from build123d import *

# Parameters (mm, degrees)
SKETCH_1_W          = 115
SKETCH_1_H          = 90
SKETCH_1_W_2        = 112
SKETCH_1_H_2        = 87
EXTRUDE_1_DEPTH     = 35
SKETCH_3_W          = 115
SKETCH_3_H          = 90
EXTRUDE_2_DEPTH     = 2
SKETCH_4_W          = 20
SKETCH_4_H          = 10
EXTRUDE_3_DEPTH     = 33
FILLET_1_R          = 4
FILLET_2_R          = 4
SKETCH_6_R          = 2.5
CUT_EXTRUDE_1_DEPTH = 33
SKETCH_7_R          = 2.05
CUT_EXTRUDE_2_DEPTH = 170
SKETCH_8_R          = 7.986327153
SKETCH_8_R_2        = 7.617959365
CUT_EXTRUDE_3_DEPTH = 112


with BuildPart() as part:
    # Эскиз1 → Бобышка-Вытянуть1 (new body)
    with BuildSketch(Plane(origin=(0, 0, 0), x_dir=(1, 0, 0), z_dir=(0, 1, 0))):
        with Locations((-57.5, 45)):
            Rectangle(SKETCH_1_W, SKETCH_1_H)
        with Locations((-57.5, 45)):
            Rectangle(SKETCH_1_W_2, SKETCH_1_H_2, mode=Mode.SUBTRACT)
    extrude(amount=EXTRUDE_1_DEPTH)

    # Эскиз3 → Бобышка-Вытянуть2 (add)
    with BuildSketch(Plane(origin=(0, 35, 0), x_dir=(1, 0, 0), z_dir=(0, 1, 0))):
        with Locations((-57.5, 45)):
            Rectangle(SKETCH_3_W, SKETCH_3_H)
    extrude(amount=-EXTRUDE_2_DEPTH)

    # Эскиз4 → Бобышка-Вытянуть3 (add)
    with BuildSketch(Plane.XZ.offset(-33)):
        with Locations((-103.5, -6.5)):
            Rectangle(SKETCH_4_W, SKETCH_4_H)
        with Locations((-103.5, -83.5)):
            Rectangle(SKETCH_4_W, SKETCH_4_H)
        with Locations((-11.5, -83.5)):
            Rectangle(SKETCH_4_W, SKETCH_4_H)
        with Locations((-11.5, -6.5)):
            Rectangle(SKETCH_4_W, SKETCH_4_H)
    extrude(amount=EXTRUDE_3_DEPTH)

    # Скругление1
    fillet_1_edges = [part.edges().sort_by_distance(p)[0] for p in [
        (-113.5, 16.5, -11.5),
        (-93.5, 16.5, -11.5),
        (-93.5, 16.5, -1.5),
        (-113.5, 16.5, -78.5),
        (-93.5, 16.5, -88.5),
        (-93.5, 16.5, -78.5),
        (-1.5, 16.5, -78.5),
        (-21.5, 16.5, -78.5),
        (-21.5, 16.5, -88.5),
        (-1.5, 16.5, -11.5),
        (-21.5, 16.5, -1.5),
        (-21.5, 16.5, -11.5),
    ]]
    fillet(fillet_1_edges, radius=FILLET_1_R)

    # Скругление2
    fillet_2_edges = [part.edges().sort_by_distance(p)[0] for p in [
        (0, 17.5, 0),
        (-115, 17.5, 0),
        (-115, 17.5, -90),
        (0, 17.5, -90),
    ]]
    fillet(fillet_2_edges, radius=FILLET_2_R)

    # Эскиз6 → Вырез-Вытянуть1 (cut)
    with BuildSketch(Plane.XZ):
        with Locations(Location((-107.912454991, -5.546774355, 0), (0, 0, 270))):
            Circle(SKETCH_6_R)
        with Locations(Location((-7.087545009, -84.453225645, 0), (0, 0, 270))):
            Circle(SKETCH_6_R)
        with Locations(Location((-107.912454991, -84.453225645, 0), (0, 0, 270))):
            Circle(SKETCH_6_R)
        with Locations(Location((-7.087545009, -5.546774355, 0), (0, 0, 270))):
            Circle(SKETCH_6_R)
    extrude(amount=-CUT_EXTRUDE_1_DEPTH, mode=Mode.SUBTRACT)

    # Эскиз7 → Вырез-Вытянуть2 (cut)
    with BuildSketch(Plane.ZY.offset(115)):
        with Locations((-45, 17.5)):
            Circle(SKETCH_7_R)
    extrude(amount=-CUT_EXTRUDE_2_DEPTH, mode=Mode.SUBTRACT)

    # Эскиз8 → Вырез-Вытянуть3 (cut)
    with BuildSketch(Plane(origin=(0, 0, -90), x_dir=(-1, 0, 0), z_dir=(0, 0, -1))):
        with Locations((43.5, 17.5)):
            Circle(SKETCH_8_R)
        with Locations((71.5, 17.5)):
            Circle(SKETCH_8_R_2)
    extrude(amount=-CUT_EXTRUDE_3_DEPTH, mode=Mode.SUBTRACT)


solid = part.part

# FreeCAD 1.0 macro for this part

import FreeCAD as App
import Part
import Sketcher
from FreeCAD import Vector


def edges_at(feature, points):
    """Names of the edges that pass closest to the given points."""
    edges = feature.Shape.Edges
    near = lambda p: min(range(len(edges)), key=lambda i: edges[i].distToShape(Part.Vertex(*p))[0])
    return sorted({f"Edge{near(p) + 1}" for p in points})

doc = App.newDocument("Part")
params = doc.addObject("Spreadsheet::Sheet", "Params")
for row, (alias, value) in enumerate([
    ("sketch1_width", "115 mm"),
    ("sketch1_width2", "112 mm"),
    ("sketch1_height", "90 mm"),
    ("sketch1_height2", "87 mm"),
    ("pad1_length", "35 mm"),
    ("sketch2_width", "115 mm"),
    ("sketch2_height", "90 mm"),
    ("pad2_length", "2 mm"),
    ("sketch3_width", "20 mm"),
    ("sketch3_height", "10 mm"),
    ("pad3_length", "33 mm"),
    ("fillet_radius", "4 mm"),
    ("fillet2_radius", "4 mm"),
    ("sketch4_diameter", "5 mm"),
    ("pocket1_length", "33 mm"),
    ("sketch5_diameter", "4.1 mm"),
    ("pocket2_length", "170 mm"),
    ("pocket3_length", "112 mm"),
], start=1):
    params.set(f"A{row}", alias)
    params.set(f"B{row}", "=" + value)
    params.setAlias(f"B{row}", alias)

body = doc.addObject("PartDesign::Body", "Body")

sketch1 = doc.addObject("Sketcher::SketchObject", "Sketch")
body.addObject(sketch1)
sketch1.AttachmentSupport = (doc.XZ_Plane, [""])
sketch1.MapMode = "FlatFace"
sketch1.addGeometry(Part.LineSegment(Vector(-115, -90, 0), Vector(-115, 0, 0)), False)
sketch1.addGeometry(Part.LineSegment(Vector(-115, 0, 0), Vector(0, 0, 0)), False)
sketch1.addGeometry(Part.LineSegment(Vector(0, 0, 0), Vector(0, -90, 0)), False)
sketch1.addGeometry(Part.LineSegment(Vector(0, -90, 0), Vector(-115, -90, 0)), False)
sketch1.addGeometry(Part.LineSegment(Vector(-2, -2, 0), Vector(-114, -2, 0)), False)
sketch1.addGeometry(Part.LineSegment(Vector(-114, -2, 0), Vector(-114, -88, 0)), False)
sketch1.addGeometry(Part.LineSegment(Vector(-114, -88, 0), Vector(-2, -88, 0)), False)
sketch1.addGeometry(Part.LineSegment(Vector(-2, -88, 0), Vector(-2, -2, 0)), False)
sketch1.addConstraint(Sketcher.Constraint("Coincident", 0, 2, 1, 1))
sketch1.addConstraint(Sketcher.Constraint("Coincident", 1, 2, 2, 1))
sketch1.addConstraint(Sketcher.Constraint("Coincident", 2, 2, 3, 1))
sketch1.addConstraint(Sketcher.Constraint("Coincident", 3, 2, 0, 1))
sketch1.addConstraint(Sketcher.Constraint("Coincident", 4, 2, 5, 1))
sketch1.addConstraint(Sketcher.Constraint("Coincident", 5, 2, 6, 1))
sketch1.addConstraint(Sketcher.Constraint("Coincident", 6, 2, 7, 1))
sketch1.addConstraint(Sketcher.Constraint("Coincident", 7, 2, 4, 1))
sketch1.addConstraint(Sketcher.Constraint("Vertical", 0))
sketch1.addConstraint(Sketcher.Constraint("Horizontal", 1))
sketch1.addConstraint(Sketcher.Constraint("Vertical", 2))
sketch1.addConstraint(Sketcher.Constraint("Horizontal", 3))
sketch1.addConstraint(Sketcher.Constraint("Horizontal", 4))
sketch1.addConstraint(Sketcher.Constraint("Vertical", 5))
sketch1.addConstraint(Sketcher.Constraint("Horizontal", 6))
sketch1.addConstraint(Sketcher.Constraint("Vertical", 7))
sketch1.addConstraint(Sketcher.Constraint("Coincident", 1, 2, -1, 1))
sketch1.addConstraint(Sketcher.Constraint("DistanceX", 1, 1, 1, 2, 115.0))
sketch1.addConstraint(Sketcher.Constraint("DistanceX", 4, 2, 4, 1, 112.0))
sketch1.addConstraint(Sketcher.Constraint("DistanceY", 0, 1, 0, 2, 90.0))
sketch1.addConstraint(Sketcher.Constraint("DistanceY", 5, 2, 5, 1, 87.0))
sketch1.addConstraint(Sketcher.Constraint("DistanceX", 4, 2, -1, 1, 113.5))
sketch1.addConstraint(Sketcher.Constraint("DistanceY", 4, 2, -1, 1, 1.5))
sketch1.setExpression("Constraints[17]", "Params.sketch1_width")
sketch1.setExpression("Constraints[18]", "Params.sketch1_width2")
sketch1.setExpression("Constraints[19]", "Params.sketch1_height")
sketch1.setExpression("Constraints[20]", "Params.sketch1_height2")
pad1 = doc.addObject("PartDesign::Pad", "Pad")
body.addObject(pad1)
pad1.Profile = sketch1
pad1.setExpression("Length", "Params.pad1_length")
pad1.Reversed = True

sketch2 = doc.addObject("Sketcher::SketchObject", "Sketch001")
body.addObject(sketch2)
sketch2.AttachmentSupport = (doc.XZ_Plane, [""])
sketch2.MapMode = "FlatFace"
sketch2.AttachmentOffset = App.Placement(Vector(0, 0, -35), App.Rotation())
sketch2.addGeometry(Part.LineSegment(Vector(-115, -90, 0), Vector(-115, 0, 0)), False)
sketch2.addGeometry(Part.LineSegment(Vector(-115, 0, 0), Vector(0, 0, 0)), False)
sketch2.addGeometry(Part.LineSegment(Vector(0, 0, 0), Vector(0, -90, 0)), False)
sketch2.addGeometry(Part.LineSegment(Vector(0, -90, 0), Vector(-115, -90, 0)), False)
sketch2.addConstraint(Sketcher.Constraint("Coincident", 0, 2, 1, 1))
sketch2.addConstraint(Sketcher.Constraint("Coincident", 1, 2, 2, 1))
sketch2.addConstraint(Sketcher.Constraint("Coincident", 2, 2, 3, 1))
sketch2.addConstraint(Sketcher.Constraint("Coincident", 3, 2, 0, 1))
sketch2.addConstraint(Sketcher.Constraint("Vertical", 0))
sketch2.addConstraint(Sketcher.Constraint("Horizontal", 1))
sketch2.addConstraint(Sketcher.Constraint("Vertical", 2))
sketch2.addConstraint(Sketcher.Constraint("Horizontal", 3))
sketch2.addConstraint(Sketcher.Constraint("Coincident", 1, 2, -1, 1))
sketch2.addConstraint(Sketcher.Constraint("DistanceX", 1, 1, 1, 2, 115.0))
sketch2.addConstraint(Sketcher.Constraint("DistanceY", 0, 1, 0, 2, 90.0))
sketch2.setExpression("Constraints[9]", "Params.sketch2_width")
sketch2.setExpression("Constraints[10]", "Params.sketch2_height")
pad2 = doc.addObject("PartDesign::Pad", "Pad001")
body.addObject(pad2)
pad2.Profile = sketch2
pad2.setExpression("Length", "Params.pad2_length")

sketch3 = doc.addObject("Sketcher::SketchObject", "Sketch002")
body.addObject(sketch3)
sketch3.AttachmentSupport = (doc.XZ_Plane, [""])
sketch3.MapMode = "FlatFace"
sketch3.AttachmentOffset = App.Placement(Vector(0, 0, -33), App.Rotation())
sketch3.addGeometry(Part.LineSegment(Vector(-114, -2, 0), Vector(-114, -12, 0)), False)
sketch3.addGeometry(Part.LineSegment(Vector(-114, -12, 0), Vector(-94, -12, 0)), False)
sketch3.addGeometry(Part.LineSegment(Vector(-94, -12, 0), Vector(-94, -2, 0)), False)
sketch3.addGeometry(Part.LineSegment(Vector(-94, -2, 0), Vector(-114, -2, 0)), False)
sketch3.addGeometry(Part.LineSegment(Vector(-114, -78, 0), Vector(-114, -88, 0)), False)
sketch3.addGeometry(Part.LineSegment(Vector(-114, -88, 0), Vector(-94, -88, 0)), False)
sketch3.addGeometry(Part.LineSegment(Vector(-94, -88, 0), Vector(-94, -78, 0)), False)
sketch3.addGeometry(Part.LineSegment(Vector(-94, -78, 0), Vector(-114, -78, 0)), False)
sketch3.addGeometry(Part.LineSegment(Vector(-22, -78, 0), Vector(-22, -88, 0)), False)
sketch3.addGeometry(Part.LineSegment(Vector(-22, -88, 0), Vector(-2, -88, 0)), False)
sketch3.addGeometry(Part.LineSegment(Vector(-2, -88, 0), Vector(-2, -78, 0)), False)
sketch3.addGeometry(Part.LineSegment(Vector(-2, -78, 0), Vector(-22, -78, 0)), False)
sketch3.addGeometry(Part.LineSegment(Vector(-22, -2, 0), Vector(-22, -12, 0)), False)
sketch3.addGeometry(Part.LineSegment(Vector(-22, -12, 0), Vector(-2, -12, 0)), False)
sketch3.addGeometry(Part.LineSegment(Vector(-2, -12, 0), Vector(-2, -2, 0)), False)
sketch3.addGeometry(Part.LineSegment(Vector(-2, -2, 0), Vector(-22, -2, 0)), False)
sketch3.addConstraint(Sketcher.Constraint("Coincident", 0, 2, 1, 1))
sketch3.addConstraint(Sketcher.Constraint("Coincident", 1, 2, 2, 1))
sketch3.addConstraint(Sketcher.Constraint("Coincident", 2, 2, 3, 1))
sketch3.addConstraint(Sketcher.Constraint("Coincident", 3, 2, 0, 1))
sketch3.addConstraint(Sketcher.Constraint("Coincident", 4, 2, 5, 1))
sketch3.addConstraint(Sketcher.Constraint("Coincident", 5, 2, 6, 1))
sketch3.addConstraint(Sketcher.Constraint("Coincident", 6, 2, 7, 1))
sketch3.addConstraint(Sketcher.Constraint("Coincident", 7, 2, 4, 1))
sketch3.addConstraint(Sketcher.Constraint("Coincident", 8, 2, 9, 1))
sketch3.addConstraint(Sketcher.Constraint("Coincident", 9, 2, 10, 1))
sketch3.addConstraint(Sketcher.Constraint("Coincident", 10, 2, 11, 1))
sketch3.addConstraint(Sketcher.Constraint("Coincident", 11, 2, 8, 1))
sketch3.addConstraint(Sketcher.Constraint("Coincident", 12, 2, 13, 1))
sketch3.addConstraint(Sketcher.Constraint("Coincident", 13, 2, 14, 1))
sketch3.addConstraint(Sketcher.Constraint("Coincident", 14, 2, 15, 1))
sketch3.addConstraint(Sketcher.Constraint("Coincident", 15, 2, 12, 1))
sketch3.addConstraint(Sketcher.Constraint("Vertical", 0))
sketch3.addConstraint(Sketcher.Constraint("Horizontal", 1))
sketch3.addConstraint(Sketcher.Constraint("Vertical", 2))
sketch3.addConstraint(Sketcher.Constraint("Horizontal", 3))
sketch3.addConstraint(Sketcher.Constraint("Vertical", 4))
sketch3.addConstraint(Sketcher.Constraint("Horizontal", 5))
sketch3.addConstraint(Sketcher.Constraint("Vertical", 6))
sketch3.addConstraint(Sketcher.Constraint("Horizontal", 7))
sketch3.addConstraint(Sketcher.Constraint("Vertical", 8))
sketch3.addConstraint(Sketcher.Constraint("Horizontal", 9))
sketch3.addConstraint(Sketcher.Constraint("Vertical", 10))
sketch3.addConstraint(Sketcher.Constraint("Horizontal", 11))
sketch3.addConstraint(Sketcher.Constraint("Vertical", 12))
sketch3.addConstraint(Sketcher.Constraint("Horizontal", 13))
sketch3.addConstraint(Sketcher.Constraint("Vertical", 14))
sketch3.addConstraint(Sketcher.Constraint("Horizontal", 15))
sketch3.addConstraint(Sketcher.Constraint("Horizontal", 5, 2, 8, 2))
sketch3.addConstraint(Sketcher.Constraint("Horizontal", 7, 2, 10, 2))
sketch3.addConstraint(Sketcher.Constraint("Horizontal", 1, 2, 12, 2))
sketch3.addConstraint(Sketcher.Constraint("Horizontal", 3, 2, 14, 2))
sketch3.addConstraint(Sketcher.Constraint("Vertical", 3, 2, 4, 2))
sketch3.addConstraint(Sketcher.Constraint("Vertical", 2, 2, 5, 2))
sketch3.addConstraint(Sketcher.Constraint("Vertical", 11, 2, 12, 2))
sketch3.addConstraint(Sketcher.Constraint("Vertical", 10, 2, 13, 2))
sketch3.addConstraint(Sketcher.Constraint("Equal", 7, 9))
sketch3.addConstraint(Sketcher.Constraint("Equal", 2, 4))
sketch3.addConstraint(Sketcher.Constraint("DistanceX", 1, 1, 1, 2, 20.0))
sketch3.addConstraint(Sketcher.Constraint("DistanceY", 0, 2, 0, 1, 10.0))
sketch3.addConstraint(Sketcher.Constraint("DistanceY", 4, 2, 0, 2, 77.0))
sketch3.addConstraint(Sketcher.Constraint("DistanceX", 5, 2, 8, 2, 72.0))
sketch3.addConstraint(Sketcher.Constraint("DistanceX", 0, 2, -1, 1, 113.5))
sketch3.addConstraint(Sketcher.Constraint("DistanceY", 0, 2, -1, 1, 11.5))
sketch3.setExpression("Constraints[42]", "Params.sketch3_width")
sketch3.setExpression("Constraints[43]", "Params.sketch3_height")
pad3 = doc.addObject("PartDesign::Pad", "Pad002")
body.addObject(pad3)
pad3.Profile = sketch3
pad3.setExpression("Length", "Params.pad3_length")
doc.recompute()

fillet = doc.addObject("PartDesign::Fillet", "Fillet")
body.addObject(fillet)
fillet.Base = (pad3, edges_at(pad3, [
    (-113.5, 16.5, -11.5),
    (-93.5, 16.5, -11.5),
    (-93.5, 16.5, -1.5),
    (-113.5, 16.5, -78.5),
    (-93.5, 16.5, -88.5),
    (-93.5, 16.5, -78.5),
    (-1.5, 16.5, -78.5),
    (-21.5, 16.5, -78.5),
    (-21.5, 16.5, -88.5),
    (-1.5, 16.5, -11.5),
    (-21.5, 16.5, -1.5),
    (-21.5, 16.5, -11.5),
]))
fillet.setExpression("Radius", "Params.fillet_radius")
doc.recompute()

fillet2 = doc.addObject("PartDesign::Fillet", "Fillet001")
body.addObject(fillet2)
fillet2.Base = (fillet, edges_at(fillet, [
    (0, 17.5, 0),
    (-115, 17.5, 0),
    (-115, 17.5, -90),
    (0, 17.5, -90),
]))
fillet2.setExpression("Radius", "Params.fillet2_radius")

sketch4 = doc.addObject("Sketcher::SketchObject", "Sketch003")
body.addObject(sketch4)
sketch4.AttachmentSupport = (doc.XZ_Plane, [""])
sketch4.MapMode = "FlatFace"
sketch4.addGeometry(Part.Circle(Vector(-107.9, -5.5, 0), Vector(0, 0, 1), 2.5), False)
sketch4.addGeometry(Part.Circle(Vector(-7.1, -84.5, 0), Vector(0, 0, 1), 2.5), False)
sketch4.addGeometry(Part.Circle(Vector(-107.9, -84.5, 0), Vector(0, 0, 1), 2.5), False)
sketch4.addGeometry(Part.Circle(Vector(-7.1, -5.5, 0), Vector(0, 0, 1), 2.5), False)
sketch4.addConstraint(Sketcher.Constraint("Equal", 0, 1))
sketch4.addConstraint(Sketcher.Constraint("Equal", 1, 2))
sketch4.addConstraint(Sketcher.Constraint("Equal", 2, 3))
sketch4.addConstraint(Sketcher.Constraint("Horizontal", 1, 3, 2, 3))
sketch4.addConstraint(Sketcher.Constraint("Horizontal", 0, 3, 3, 3))
sketch4.addConstraint(Sketcher.Constraint("Vertical", 0, 3, 2, 3))
sketch4.addConstraint(Sketcher.Constraint("Vertical", 1, 3, 3, 3))
sketch4.addConstraint(Sketcher.Constraint("Diameter", 0, 5.0))
sketch4.addConstraint(Sketcher.Constraint("DistanceX", 0, 3, 1, 3, 100.82491))
sketch4.addConstraint(Sketcher.Constraint("DistanceY", 1, 3, 0, 3, 78.906451))
sketch4.addConstraint(Sketcher.Constraint("DistanceX", 0, 3, -1, 1, 107.912455))
sketch4.addConstraint(Sketcher.Constraint("DistanceY", 0, 3, -1, 1, 5.546774))
sketch4.setExpression("Constraints[7]", "Params.sketch4_diameter")
pocket1 = doc.addObject("PartDesign::Pocket", "Pocket")
body.addObject(pocket1)
pocket1.Profile = sketch4
pocket1.setExpression("Length", "Params.pocket1_length")

sketch5 = doc.addObject("Sketcher::SketchObject", "Sketch004")
body.addObject(sketch5)
sketch5.AttachmentSupport = (doc.YZ_Plane, [""])
sketch5.MapMode = "FlatFace"
sketch5.AttachmentOffset = App.Placement(Vector(0, 0, -115), App.Rotation())
sketch5.addGeometry(Part.Circle(Vector(17.5, -45, 0), Vector(0, 0, 1), 2), False)
sketch5.addConstraint(Sketcher.Constraint("Diameter", 0, 4.1))
sketch5.addConstraint(Sketcher.Constraint("DistanceY", 0, 3, -1, 1, 45.0))
sketch5.addConstraint(Sketcher.Constraint("DistanceX", -1, 1, 0, 3, 17.5))
sketch5.setExpression("Constraints[0]", "Params.sketch5_diameter")
pocket2 = doc.addObject("PartDesign::Pocket", "Pocket001")
body.addObject(pocket2)
pocket2.Profile = sketch5
pocket2.setExpression("Length", "Params.pocket2_length")
pocket2.Reversed = True

sketch6 = doc.addObject("Sketcher::SketchObject", "Sketch005")
body.addObject(sketch6)
sketch6.AttachmentSupport = (doc.XY_Plane, [""])
sketch6.MapMode = "FlatFace"
sketch6.AttachmentOffset = App.Placement(Vector(0, 0, -90), App.Rotation())
sketch6.addGeometry(Part.Circle(Vector(-44, 18, 0), Vector(0, 0, 1), 8), False)
sketch6.addGeometry(Part.Circle(Vector(-72, 18, 0), Vector(0, 0, 1), 8), False)
sketch6.addConstraint(Sketcher.Constraint("Horizontal", 0, 3, 1, 3))
sketch6.addConstraint(Sketcher.Constraint("DistanceX", 1, 3, 0, 3, 28.0))
sketch6.addConstraint(Sketcher.Constraint("DistanceX", 0, 3, -1, 1, 43.5))
sketch6.addConstraint(Sketcher.Constraint("DistanceY", -1, 1, 0, 3, 17.5))
sketch6.addConstraint(Sketcher.Constraint("Diameter", 1, 15.235919))
sketch6.addConstraint(Sketcher.Constraint("Diameter", 0, 15.972654))
pocket3 = doc.addObject("PartDesign::Pocket", "Pocket002")
body.addObject(pocket3)
pocket3.Profile = sketch6
pocket3.setExpression("Length", "Params.pocket3_length")
pocket3.Reversed = True

doc.recompute()
